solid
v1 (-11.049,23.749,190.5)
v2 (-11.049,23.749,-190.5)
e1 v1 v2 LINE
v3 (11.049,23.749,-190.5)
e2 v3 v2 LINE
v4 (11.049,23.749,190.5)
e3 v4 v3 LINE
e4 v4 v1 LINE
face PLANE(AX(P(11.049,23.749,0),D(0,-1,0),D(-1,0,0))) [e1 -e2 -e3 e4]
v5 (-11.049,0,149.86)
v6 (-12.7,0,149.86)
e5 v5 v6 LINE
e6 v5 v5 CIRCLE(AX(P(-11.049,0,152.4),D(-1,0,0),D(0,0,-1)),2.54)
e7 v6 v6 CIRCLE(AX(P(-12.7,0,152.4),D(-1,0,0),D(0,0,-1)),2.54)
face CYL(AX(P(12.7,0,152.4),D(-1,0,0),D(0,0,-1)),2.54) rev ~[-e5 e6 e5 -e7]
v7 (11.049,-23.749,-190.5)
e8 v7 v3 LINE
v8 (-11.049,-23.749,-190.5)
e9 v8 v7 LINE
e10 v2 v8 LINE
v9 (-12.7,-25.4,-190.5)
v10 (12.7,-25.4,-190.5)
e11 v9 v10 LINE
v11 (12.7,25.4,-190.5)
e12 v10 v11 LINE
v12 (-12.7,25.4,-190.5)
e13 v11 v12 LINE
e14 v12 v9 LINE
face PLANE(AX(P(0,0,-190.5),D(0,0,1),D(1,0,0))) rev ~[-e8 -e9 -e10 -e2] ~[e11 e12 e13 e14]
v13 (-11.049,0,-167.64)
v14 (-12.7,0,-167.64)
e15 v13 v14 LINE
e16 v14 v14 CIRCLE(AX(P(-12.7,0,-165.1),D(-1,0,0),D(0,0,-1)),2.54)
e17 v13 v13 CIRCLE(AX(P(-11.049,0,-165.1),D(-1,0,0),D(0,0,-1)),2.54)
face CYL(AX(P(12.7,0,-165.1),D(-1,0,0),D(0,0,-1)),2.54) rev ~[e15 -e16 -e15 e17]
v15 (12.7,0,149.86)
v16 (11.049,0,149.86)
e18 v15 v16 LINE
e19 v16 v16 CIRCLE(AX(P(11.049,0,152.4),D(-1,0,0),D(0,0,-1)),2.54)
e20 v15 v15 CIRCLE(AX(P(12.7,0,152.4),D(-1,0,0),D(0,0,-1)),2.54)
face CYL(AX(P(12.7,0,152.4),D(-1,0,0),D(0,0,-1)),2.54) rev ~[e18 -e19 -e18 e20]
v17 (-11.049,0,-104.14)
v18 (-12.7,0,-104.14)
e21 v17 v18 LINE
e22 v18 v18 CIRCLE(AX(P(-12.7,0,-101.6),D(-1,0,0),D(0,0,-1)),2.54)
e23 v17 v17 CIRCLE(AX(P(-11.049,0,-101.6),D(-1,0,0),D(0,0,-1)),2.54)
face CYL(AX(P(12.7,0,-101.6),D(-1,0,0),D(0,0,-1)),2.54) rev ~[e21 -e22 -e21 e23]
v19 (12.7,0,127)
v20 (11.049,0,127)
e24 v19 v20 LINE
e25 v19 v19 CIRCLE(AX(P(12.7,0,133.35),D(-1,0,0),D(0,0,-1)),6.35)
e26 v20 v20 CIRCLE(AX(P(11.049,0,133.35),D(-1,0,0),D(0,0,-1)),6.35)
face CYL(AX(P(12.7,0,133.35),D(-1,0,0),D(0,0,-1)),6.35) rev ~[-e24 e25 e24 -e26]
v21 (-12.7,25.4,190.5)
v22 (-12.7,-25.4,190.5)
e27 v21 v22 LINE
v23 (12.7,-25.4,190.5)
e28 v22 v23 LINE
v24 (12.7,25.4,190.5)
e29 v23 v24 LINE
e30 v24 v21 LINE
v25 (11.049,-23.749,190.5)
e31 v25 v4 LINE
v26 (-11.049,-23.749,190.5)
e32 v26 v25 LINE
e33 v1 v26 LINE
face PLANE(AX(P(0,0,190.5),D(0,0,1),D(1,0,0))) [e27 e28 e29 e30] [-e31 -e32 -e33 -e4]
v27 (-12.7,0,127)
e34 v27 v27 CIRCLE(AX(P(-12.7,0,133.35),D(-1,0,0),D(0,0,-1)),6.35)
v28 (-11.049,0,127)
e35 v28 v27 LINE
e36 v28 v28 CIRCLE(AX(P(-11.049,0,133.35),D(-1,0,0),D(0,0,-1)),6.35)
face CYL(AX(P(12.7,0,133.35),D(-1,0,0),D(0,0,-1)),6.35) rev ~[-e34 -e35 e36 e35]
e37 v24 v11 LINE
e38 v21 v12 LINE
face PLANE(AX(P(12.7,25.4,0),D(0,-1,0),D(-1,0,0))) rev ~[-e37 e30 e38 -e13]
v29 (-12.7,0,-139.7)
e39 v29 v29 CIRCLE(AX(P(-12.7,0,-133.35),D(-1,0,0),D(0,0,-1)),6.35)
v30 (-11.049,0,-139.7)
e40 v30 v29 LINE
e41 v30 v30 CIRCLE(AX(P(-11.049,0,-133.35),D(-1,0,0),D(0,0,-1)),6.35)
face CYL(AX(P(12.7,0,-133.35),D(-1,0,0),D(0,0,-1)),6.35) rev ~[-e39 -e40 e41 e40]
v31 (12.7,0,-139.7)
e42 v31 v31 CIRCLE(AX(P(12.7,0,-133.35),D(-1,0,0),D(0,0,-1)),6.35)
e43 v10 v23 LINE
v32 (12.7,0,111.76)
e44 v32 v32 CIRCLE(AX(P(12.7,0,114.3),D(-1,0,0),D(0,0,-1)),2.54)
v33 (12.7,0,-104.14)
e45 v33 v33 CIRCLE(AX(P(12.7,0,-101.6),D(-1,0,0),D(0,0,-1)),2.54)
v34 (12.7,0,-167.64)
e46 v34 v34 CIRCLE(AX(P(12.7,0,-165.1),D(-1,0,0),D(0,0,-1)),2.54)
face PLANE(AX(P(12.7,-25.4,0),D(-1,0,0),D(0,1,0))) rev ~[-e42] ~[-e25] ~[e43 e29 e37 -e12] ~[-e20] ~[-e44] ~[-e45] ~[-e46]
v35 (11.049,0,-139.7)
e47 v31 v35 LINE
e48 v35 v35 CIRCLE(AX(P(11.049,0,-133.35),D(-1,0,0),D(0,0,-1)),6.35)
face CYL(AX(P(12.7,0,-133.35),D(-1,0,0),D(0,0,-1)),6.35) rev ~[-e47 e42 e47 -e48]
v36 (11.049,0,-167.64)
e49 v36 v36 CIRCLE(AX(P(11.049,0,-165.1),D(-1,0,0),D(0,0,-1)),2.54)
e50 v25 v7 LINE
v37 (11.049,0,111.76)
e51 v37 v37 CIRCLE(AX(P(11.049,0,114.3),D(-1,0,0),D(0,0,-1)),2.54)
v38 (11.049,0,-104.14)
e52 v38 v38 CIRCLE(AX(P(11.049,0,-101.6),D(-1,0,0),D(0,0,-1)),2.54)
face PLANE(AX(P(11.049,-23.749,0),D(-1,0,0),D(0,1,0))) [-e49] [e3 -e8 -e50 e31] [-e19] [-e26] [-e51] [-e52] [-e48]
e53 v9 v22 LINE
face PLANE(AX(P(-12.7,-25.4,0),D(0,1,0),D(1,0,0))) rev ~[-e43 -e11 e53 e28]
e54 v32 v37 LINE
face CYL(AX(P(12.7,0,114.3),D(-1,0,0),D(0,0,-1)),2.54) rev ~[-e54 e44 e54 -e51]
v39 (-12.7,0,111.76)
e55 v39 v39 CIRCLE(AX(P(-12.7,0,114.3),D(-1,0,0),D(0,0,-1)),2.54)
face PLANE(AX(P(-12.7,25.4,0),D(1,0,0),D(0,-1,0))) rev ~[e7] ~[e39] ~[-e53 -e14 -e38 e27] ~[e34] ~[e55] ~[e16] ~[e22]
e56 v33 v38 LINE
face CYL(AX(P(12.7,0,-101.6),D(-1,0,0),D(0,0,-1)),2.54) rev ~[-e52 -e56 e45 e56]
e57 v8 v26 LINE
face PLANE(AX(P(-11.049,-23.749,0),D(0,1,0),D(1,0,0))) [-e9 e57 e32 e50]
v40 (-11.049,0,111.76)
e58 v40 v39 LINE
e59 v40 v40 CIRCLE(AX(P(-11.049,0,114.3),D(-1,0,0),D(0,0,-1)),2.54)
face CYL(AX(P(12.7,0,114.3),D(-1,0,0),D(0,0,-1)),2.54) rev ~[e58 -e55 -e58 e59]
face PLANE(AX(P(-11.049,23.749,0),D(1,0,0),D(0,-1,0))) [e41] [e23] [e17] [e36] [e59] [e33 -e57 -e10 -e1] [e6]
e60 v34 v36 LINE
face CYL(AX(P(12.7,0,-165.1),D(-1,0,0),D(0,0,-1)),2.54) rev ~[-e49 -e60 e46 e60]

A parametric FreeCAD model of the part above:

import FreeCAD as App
import Part
import Sketcher
from FreeCAD import Vector
Q = App.Units.Quantity

doc = App.newDocument("Part")
params = doc.addObject("Spreadsheet::Sheet", "Params")
for row, (alias, value) in enumerate([
    ("sketch1_width", "1 in"),
    ("sketch1_height", "2 in"),
    ("sketch1_width2", "0.87 in"),
    ("sketch1_height2", "1.87 in"),
    ("pad1_length", "15 in"),
    ("sketch2_diameter", "0.5 in"),
    ("hole_diameter", "0.5 in"),
    ("sketch3_diameter", "0.5 in"),
    ("hole2_diameter", "0.5 in"),
    ("sketch4_diameter", "0.2 in"),
    ("hole3_diameter", "0.2 in"),
    ("sketch5_diameter", "0.2 in"),
    ("hole4_diameter", "0.2 in"),
], start=1):
    params.set(f"A{row}", alias)
    params.set(f"B{row}", "=" + value)
    params.setAlias(f"B{row}", alias)

body = doc.addObject("PartDesign::Body", "Body")

# Sketch on XY plane
sketch1 = body.newObject("Sketcher::SketchObject", "Sketch")
sketch1.AttachmentSupport = (doc.getObject("XY_Plane"), [""])
sketch1.MapMode = "FlatFace"
sketch1.addGeometry([
    Part.LineSegment(Vector(-13, 25, 0), Vector(-13, -25, 0)),  # 0
    Part.LineSegment(Vector(-13, -25, 0), Vector(13, -25, 0)),  # 1
    Part.LineSegment(Vector(13, -25, 0), Vector(13, 25, 0)),  # 2
    Part.LineSegment(Vector(13, 25, 0), Vector(-13, 25, 0)),  # 3
    Part.LineSegment(Vector(11, -24, 0), Vector(-11, -24, 0)),  # 4
    Part.LineSegment(Vector(-11, -24, 0), Vector(-11, 24, 0)),  # 5
    Part.LineSegment(Vector(-11, 24, 0), Vector(11, 24, 0)),  # 6
    Part.LineSegment(Vector(11, 24, 0), Vector(11, -24, 0)),  # 7
], False)
sketch1.addConstraint([
    Sketcher.Constraint("Coincident", 0, 2, 1, 1),
    Sketcher.Constraint("Coincident", 1, 2, 2, 1),
    Sketcher.Constraint("Coincident", 2, 2, 3, 1),
    Sketcher.Constraint("Coincident", 3, 2, 0, 1),
    Sketcher.Constraint("Coincident", 4, 2, 5, 1),
    Sketcher.Constraint("Coincident", 5, 2, 6, 1),
    Sketcher.Constraint("Coincident", 6, 2, 7, 1),
    Sketcher.Constraint("Coincident", 7, 2, 4, 1),
    Sketcher.Constraint("Vertical", 0),
    Sketcher.Constraint("Horizontal", 1),
    Sketcher.Constraint("Vertical", 2),
    Sketcher.Constraint("Horizontal", 3),
    Sketcher.Constraint("Horizontal", 4),
    Sketcher.Constraint("Vertical", 5),
    Sketcher.Constraint("Horizontal", 6),
    Sketcher.Constraint("Vertical", 7),
    Sketcher.Constraint("Symmetric", 0, 2, 2, 2, -1, 1),
    Sketcher.Constraint("Symmetric", 4, 2, 6, 2, -1, 1),
    Sketcher.Constraint("DistanceX", 1, 1, 1, 2, Q("1 in")),
    Sketcher.Constraint("DistanceY", 0, 2, 0, 1, Q("2 in")),
    Sketcher.Constraint("DistanceX", 4, 2, 4, 1, Q("0.87 in")),
    Sketcher.Constraint("DistanceY", 5, 1, 5, 2, Q("1.87 in")),
])
sketch1.setExpression("Constraints[18]", "Params.sketch1_width")
sketch1.setExpression("Constraints[19]", "Params.sketch1_height")
sketch1.setExpression("Constraints[20]", "Params.sketch1_width2")
sketch1.setExpression("Constraints[21]", "Params.sketch1_height2")
pad1 = body.newObject("PartDesign::Pad", "Pad")
pad1.Profile = sketch1
pad1.setExpression("Length", "Params.pad1_length")
pad1.Midplane = True

# Sketch on YZ plane
sketch2 = body.newObject("Sketcher::SketchObject", "Sketch001")
sketch2.AttachmentSupport = (doc.getObject("YZ_Plane"), [""])
sketch2.MapMode = "FlatFace"
sketch2.AttachmentOffset = App.Placement(Vector(0, 0, 0.5 * 25.4), App.Rotation())
sketch2.addGeometry(Part.Circle(Vector(0, 133, 0), Vector(0, 0, 1), 6), False)
sketch2.addConstraint([
    Sketcher.Constraint("PointOnObject", 0, 3, -2),
    Sketcher.Constraint("Diameter", 0, Q("0.5 in")),
    Sketcher.Constraint("DistanceY", -1, 1, 0, 3, Q("5.25 in")),
])
sketch2.setExpression("Constraints[1]", "Params.sketch2_diameter")
doc.recompute()
hole = body.newObject("PartDesign::Hole", "Hole")
hole.Profile = sketch2
hole.ThreadType = "None"
hole.setExpression("Diameter", "Params.hole_diameter")
hole.DepthType = "ThroughAll"

# Sketch on YZ plane
sketch3 = body.newObject("Sketcher::SketchObject", "Sketch002")
sketch3.AttachmentSupport = (doc.getObject("YZ_Plane"), [""])
sketch3.MapMode = "FlatFace"
sketch3.AttachmentOffset = App.Placement(Vector(0, 0, 0.5 * 25.4), App.Rotation())
sketch3.addGeometry(Part.Circle(Vector(0, -133, 0), Vector(0, 0, 1), 6), False)
sketch3.addConstraint([
    Sketcher.Constraint("PointOnObject", 0, 3, -2),
    Sketcher.Constraint("Diameter", 0, Q("0.5 in")),
    Sketcher.Constraint("DistanceY", 0, 3, -1, 1, Q("5.25 in")),
])
sketch3.setExpression("Constraints[1]", "Params.sketch3_diameter")
doc.recompute()
hole2 = body.newObject("PartDesign::Hole", "Hole001")
hole2.Profile = sketch3
hole2.ThreadType = "None"
hole2.setExpression("Diameter", "Params.hole2_diameter")
hole2.DepthType = "ThroughAll"

# Sketch on YZ plane
sketch4 = body.newObject("Sketcher::SketchObject", "Sketch003")
sketch4.AttachmentSupport = (doc.getObject("YZ_Plane"), [""])
sketch4.MapMode = "FlatFace"
sketch4.AttachmentOffset = App.Placement(Vector(0, 0, 0.5 * 25.4), App.Rotation())
sketch4.addGeometry([
    Part.Circle(Vector(0, -101.6, 0), Vector(0, 0, 1), 2.5),
    Part.Circle(Vector(0, -165.1, 0), Vector(0, 0, 1), 2.5),
], False)
sketch4.addConstraint([
    Sketcher.Constraint("Equal", 0, 1),
    Sketcher.Constraint("PointOnObject", 0, 3, -2),
    Sketcher.Constraint("PointOnObject", 1, 3, -2),
    Sketcher.Constraint("Diameter", 0, Q("0.2 in")),
    Sketcher.Constraint("DistanceY", 0, 3, -1, 1, Q("4 in")),
    Sketcher.Constraint("DistanceY", 1, 3, -1, 1, Q("6.5 in")),
])
sketch4.setExpression("Constraints[3]", "Params.sketch4_diameter")
doc.recompute()
hole3 = body.newObject("PartDesign::Hole", "Hole002")
hole3.Profile = sketch4
hole3.ThreadType = "None"
hole3.setExpression("Diameter", "Params.hole3_diameter")
hole3.DepthType = "ThroughAll"

# Sketch on YZ plane
sketch5 = body.newObject("Sketcher::SketchObject", "Sketch004")
sketch5.AttachmentSupport = (doc.getObject("YZ_Plane"), [""])
sketch5.MapMode = "FlatFace"
sketch5.AttachmentOffset = App.Placement(Vector(0, 0, 0.5 * 25.4), App.Rotation())
sketch5.addGeometry([
    Part.Circle(Vector(0, 152.4, 0), Vector(0, 0, 1), 2.5),
    Part.Circle(Vector(0, 114.3, 0), Vector(0, 0, 1), 2.5),
], False)
sketch5.addConstraint([
    Sketcher.Constraint("Equal", 0, 1),
    Sketcher.Constraint("PointOnObject", 0, 3, -2),
    Sketcher.Constraint("PointOnObject", 1, 3, -2),
    Sketcher.Constraint("Diameter", 0, Q("0.2 in")),
    Sketcher.Constraint("DistanceY", -1, 1, 0, 3, Q("6 in")),
    Sketcher.Constraint("DistanceY", -1, 1, 1, 3, Q("4.5 in")),
])
sketch5.setExpression("Constraints[3]", "Params.sketch5_diameter")
doc.recompute()
hole4 = body.newObject("PartDesign::Hole", "Hole003")
hole4.Profile = sketch5
hole4.ThreadType = "None"
hole4.setExpression("Diameter", "Params.hole4_diameter")
hole4.DepthType = "ThroughAll"

doc.recompute()
